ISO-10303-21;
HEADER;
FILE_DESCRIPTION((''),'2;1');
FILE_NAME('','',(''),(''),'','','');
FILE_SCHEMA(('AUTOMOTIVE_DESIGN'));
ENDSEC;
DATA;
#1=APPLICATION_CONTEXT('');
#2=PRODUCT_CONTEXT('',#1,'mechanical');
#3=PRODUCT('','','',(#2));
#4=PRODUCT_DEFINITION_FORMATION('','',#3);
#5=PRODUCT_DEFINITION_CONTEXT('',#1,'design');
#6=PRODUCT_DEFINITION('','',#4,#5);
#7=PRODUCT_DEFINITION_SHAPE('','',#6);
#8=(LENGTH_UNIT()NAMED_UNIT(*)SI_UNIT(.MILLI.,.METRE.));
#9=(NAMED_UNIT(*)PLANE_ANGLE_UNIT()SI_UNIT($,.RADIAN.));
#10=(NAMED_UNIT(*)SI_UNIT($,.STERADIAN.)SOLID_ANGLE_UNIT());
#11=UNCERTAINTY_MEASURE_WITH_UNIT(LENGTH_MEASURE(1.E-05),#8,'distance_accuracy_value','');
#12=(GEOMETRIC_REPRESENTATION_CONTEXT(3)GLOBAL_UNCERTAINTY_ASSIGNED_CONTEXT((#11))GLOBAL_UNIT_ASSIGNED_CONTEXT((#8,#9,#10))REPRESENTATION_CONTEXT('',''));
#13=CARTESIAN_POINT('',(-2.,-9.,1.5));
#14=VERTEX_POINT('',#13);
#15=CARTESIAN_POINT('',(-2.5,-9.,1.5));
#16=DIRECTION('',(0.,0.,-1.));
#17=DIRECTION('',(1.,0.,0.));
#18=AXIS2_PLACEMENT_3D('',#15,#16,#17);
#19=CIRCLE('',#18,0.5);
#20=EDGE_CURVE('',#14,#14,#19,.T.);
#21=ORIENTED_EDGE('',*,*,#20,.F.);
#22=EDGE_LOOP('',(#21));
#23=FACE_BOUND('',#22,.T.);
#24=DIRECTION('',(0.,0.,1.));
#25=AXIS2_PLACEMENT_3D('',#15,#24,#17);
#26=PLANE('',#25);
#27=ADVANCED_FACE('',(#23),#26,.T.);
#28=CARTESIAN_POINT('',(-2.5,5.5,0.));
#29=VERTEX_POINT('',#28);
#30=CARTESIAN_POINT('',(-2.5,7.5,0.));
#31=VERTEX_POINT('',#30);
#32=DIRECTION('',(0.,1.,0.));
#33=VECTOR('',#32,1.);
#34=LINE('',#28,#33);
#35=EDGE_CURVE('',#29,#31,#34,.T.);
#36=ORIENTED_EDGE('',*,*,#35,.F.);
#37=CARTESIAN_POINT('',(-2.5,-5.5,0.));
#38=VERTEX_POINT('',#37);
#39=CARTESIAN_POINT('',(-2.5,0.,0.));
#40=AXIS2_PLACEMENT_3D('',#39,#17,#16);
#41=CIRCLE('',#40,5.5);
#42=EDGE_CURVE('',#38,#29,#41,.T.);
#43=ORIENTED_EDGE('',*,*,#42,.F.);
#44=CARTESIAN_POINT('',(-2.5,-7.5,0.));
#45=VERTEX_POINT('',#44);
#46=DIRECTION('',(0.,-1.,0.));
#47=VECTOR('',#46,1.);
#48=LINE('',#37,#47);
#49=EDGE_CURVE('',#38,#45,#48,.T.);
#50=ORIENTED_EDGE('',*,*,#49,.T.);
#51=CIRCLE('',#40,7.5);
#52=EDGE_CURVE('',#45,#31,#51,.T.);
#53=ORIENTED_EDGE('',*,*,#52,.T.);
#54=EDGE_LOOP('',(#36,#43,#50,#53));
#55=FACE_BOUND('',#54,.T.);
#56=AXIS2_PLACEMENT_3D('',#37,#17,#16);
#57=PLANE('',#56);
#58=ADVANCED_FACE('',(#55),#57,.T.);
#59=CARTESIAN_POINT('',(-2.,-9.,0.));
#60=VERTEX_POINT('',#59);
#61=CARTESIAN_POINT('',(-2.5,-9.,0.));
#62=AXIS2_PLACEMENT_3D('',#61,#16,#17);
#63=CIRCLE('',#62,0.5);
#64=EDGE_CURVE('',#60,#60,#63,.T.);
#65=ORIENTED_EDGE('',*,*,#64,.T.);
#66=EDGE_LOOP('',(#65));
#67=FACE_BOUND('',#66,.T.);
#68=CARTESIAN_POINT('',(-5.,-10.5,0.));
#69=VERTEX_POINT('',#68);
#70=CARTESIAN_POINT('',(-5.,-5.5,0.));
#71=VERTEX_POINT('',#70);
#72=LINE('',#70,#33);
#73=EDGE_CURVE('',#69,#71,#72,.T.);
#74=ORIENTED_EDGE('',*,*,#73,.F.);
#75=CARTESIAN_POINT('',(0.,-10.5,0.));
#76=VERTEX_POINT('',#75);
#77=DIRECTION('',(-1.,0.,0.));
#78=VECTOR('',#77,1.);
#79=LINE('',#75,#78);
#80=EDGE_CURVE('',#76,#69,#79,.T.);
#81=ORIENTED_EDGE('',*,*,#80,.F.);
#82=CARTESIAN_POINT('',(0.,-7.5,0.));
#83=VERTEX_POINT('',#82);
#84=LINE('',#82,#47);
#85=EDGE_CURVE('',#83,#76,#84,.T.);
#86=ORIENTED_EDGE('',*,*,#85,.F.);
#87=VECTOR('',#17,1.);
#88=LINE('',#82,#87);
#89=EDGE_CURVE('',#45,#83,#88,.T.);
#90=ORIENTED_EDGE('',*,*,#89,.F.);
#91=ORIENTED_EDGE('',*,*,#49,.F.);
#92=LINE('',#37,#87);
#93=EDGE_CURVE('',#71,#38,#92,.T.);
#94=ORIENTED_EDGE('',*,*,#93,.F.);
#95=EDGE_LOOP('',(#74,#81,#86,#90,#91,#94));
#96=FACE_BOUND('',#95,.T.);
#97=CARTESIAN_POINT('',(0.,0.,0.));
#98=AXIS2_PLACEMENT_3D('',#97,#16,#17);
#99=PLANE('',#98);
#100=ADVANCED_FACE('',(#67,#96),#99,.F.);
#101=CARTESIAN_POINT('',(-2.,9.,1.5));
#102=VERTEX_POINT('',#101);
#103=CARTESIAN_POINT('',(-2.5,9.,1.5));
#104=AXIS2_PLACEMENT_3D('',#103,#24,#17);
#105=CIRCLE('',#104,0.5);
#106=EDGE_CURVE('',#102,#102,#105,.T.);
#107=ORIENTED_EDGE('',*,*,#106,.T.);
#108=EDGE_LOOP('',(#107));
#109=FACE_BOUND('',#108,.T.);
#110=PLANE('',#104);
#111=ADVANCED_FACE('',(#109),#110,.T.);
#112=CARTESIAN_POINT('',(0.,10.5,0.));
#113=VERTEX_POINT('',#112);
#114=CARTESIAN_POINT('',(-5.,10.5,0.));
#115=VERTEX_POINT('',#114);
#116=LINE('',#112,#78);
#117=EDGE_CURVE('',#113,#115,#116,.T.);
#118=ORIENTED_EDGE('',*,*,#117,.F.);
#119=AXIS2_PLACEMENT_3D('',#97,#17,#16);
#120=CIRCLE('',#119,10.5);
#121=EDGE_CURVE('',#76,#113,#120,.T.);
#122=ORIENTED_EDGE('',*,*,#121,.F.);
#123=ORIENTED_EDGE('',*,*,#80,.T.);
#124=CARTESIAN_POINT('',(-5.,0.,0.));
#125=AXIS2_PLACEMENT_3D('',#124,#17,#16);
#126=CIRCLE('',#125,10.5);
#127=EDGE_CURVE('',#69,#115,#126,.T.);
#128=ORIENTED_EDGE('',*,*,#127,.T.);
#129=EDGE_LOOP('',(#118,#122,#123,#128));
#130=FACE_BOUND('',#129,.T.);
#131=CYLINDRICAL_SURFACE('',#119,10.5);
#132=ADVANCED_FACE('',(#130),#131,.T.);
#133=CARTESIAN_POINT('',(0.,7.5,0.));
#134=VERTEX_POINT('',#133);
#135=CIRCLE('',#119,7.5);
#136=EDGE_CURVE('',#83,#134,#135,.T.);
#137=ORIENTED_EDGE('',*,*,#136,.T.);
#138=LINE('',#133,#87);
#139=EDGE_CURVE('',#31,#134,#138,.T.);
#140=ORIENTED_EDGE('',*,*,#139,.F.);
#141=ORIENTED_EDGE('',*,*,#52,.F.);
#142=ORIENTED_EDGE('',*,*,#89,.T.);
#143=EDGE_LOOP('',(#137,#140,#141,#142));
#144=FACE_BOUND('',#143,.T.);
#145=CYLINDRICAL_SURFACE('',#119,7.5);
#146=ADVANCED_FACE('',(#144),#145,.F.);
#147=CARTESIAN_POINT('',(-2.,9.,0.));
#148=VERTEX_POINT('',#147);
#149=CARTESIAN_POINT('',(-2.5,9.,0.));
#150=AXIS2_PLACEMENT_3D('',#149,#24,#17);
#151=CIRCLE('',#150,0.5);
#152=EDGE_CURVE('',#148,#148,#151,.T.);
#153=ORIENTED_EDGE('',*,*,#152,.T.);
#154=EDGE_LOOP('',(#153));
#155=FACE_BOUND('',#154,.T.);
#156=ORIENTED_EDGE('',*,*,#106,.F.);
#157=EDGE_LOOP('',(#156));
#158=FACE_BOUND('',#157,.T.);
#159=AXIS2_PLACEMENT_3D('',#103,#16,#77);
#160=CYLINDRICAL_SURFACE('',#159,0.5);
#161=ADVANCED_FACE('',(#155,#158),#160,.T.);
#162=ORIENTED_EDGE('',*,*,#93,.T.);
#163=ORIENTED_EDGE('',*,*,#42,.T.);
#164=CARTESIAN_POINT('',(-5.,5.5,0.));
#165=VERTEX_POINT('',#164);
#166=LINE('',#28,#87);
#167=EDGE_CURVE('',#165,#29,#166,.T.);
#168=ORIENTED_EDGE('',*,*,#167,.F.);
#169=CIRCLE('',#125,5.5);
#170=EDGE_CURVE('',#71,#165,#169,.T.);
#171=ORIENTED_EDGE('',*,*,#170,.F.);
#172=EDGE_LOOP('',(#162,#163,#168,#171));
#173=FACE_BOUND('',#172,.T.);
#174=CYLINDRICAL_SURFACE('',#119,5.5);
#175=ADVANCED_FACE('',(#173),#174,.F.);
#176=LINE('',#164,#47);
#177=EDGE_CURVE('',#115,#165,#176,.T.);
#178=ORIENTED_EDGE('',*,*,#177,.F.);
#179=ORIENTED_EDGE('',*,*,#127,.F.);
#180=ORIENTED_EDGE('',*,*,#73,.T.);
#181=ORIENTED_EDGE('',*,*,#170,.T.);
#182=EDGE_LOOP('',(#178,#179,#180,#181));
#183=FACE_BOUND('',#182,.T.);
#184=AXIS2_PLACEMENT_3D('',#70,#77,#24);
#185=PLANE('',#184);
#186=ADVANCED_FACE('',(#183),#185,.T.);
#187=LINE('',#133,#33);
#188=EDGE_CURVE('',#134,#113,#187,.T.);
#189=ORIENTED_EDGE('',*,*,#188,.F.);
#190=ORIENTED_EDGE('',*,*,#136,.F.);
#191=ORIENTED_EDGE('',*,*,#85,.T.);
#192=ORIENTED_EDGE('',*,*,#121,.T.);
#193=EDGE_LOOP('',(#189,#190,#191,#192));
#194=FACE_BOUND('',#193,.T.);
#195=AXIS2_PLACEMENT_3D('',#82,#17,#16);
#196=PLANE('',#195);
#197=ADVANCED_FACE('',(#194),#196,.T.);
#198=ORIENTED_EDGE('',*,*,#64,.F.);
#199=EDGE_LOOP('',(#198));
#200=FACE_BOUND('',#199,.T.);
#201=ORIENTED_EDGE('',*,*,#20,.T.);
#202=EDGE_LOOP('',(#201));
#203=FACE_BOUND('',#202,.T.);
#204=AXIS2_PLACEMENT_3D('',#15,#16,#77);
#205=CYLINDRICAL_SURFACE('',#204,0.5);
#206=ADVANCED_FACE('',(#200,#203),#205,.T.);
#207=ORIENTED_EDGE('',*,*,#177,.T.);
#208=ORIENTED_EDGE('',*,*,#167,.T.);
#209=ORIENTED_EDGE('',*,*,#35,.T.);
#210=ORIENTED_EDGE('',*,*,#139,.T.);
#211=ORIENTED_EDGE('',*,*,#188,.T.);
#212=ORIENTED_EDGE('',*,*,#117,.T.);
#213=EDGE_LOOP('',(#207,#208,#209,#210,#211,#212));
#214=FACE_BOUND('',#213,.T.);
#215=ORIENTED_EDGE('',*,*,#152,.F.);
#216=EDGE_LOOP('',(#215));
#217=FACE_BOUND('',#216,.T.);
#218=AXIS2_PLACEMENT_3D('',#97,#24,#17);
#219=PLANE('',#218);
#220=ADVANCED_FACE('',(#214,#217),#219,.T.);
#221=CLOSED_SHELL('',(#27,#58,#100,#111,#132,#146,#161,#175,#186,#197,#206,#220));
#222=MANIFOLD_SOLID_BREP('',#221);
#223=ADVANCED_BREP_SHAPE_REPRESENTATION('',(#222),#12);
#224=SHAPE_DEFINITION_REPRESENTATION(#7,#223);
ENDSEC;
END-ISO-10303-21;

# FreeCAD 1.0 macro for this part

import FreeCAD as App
import Part
import Sketcher

V = App.Vector


def add_polygon(sketch, points):
    """Adds a closed chain of lines whose ends are joined by coincident constraints."""
    first, n = sketch.GeometryCount, len(points)
    for a, b in zip(points, points[1:] + points[:1]):
        sketch.addGeometry(Part.LineSegment(App.Vector(*a, 0), App.Vector(*b, 0)), False)
    for i in range(n):
        sketch.addConstraint(Sketcher.Constraint("Coincident", first + i, 2, first + (i + 1) % n, 1))

doc = App.newDocument("Part")
body = doc.addObject("PartDesign::Body", "Body")

# Sketch on XY plane
sketch1 = doc.addObject("Sketcher::SketchObject", "Sketch")
body.addObject(sketch1)
sketch1.AttachmentSupport = (doc.XY_Plane, [""])
sketch1.MapMode = "FlatFace"
add_polygon(sketch1, [(-5, 5.5), (-2.5, 5.5), (-2.5, 7.5), (0, 7.5), (0, 10.5), (-5, 10.5)])  # lines 0-5
sketch1.addConstraint(Sketcher.Constraint("Horizontal", 0))
sketch1.addConstraint(Sketcher.Constraint("Vertical", 1))
sketch1.addConstraint(Sketcher.Constraint("Horizontal", 2))
sketch1.addConstraint(Sketcher.Constraint("Vertical", 3))
sketch1.addConstraint(Sketcher.Constraint("Horizontal", 4))
sketch1.addConstraint(Sketcher.Constraint("Vertical", 5))
sketch1.addConstraint(Sketcher.Constraint("PointOnObject", 2, 2, -2))
sketch1.addConstraint(Sketcher.Constraint("Equal", 0, 2))
sketch1.addConstraint(Sketcher.Constraint("Equal", 4, 5))
sketch1.addConstraint(Sketcher.Constraint("DistanceX", 4, 2, 4, 1, 5.0))
sketch1.addConstraint(Sketcher.Constraint("DistanceY", 1, 1, 1, 2, 2.0))
sketch1.addConstraint(Sketcher.Constraint("DistanceY", -1, 1, 0, 2, 5.5))
revolution = doc.addObject("PartDesign::Revolution", "Revolution")
body.addObject(revolution)
revolution.Profile = sketch1
revolution.ReferenceAxis = (sketch1, ["H_Axis"])
revolution.Angle = 180
revolution.Reversed = True

# Sketch on XY plane
sketch2 = doc.addObject("Sketcher::SketchObject", "Sketch001")
body.addObject(sketch2)
sketch2.AttachmentSupport = (doc.XY_Plane, [""])
sketch2.MapMode = "FlatFace"
sketch2.addGeometry(Part.Circle(V(-2.5, 9, 0), V(0, 0, 1), 0.5), False)
sketch2.addConstraint(Sketcher.Constraint("Diameter", 0, 1.0))
sketch2.addConstraint(Sketcher.Constraint("DistanceY", -1, 1, 0, 3, 9.0))
sketch2.addConstraint(Sketcher.Constraint("DistanceX", 0, 3, -1, 1, 2.5))
pad1 = doc.addObject("PartDesign::Pad", "Pad")
body.addObject(pad1)
pad1.Profile = sketch2
pad1.Length = 1.5
doc.recompute()

mirrored = doc.addObject("PartDesign::Mirrored", "Mirrored")
body.addObject(mirrored)
mirrored.Originals = [pad1]
mirrored.MirrorPlane = (doc.XZ_Plane, [""])
body.Tip = mirrored

doc.recompute()
